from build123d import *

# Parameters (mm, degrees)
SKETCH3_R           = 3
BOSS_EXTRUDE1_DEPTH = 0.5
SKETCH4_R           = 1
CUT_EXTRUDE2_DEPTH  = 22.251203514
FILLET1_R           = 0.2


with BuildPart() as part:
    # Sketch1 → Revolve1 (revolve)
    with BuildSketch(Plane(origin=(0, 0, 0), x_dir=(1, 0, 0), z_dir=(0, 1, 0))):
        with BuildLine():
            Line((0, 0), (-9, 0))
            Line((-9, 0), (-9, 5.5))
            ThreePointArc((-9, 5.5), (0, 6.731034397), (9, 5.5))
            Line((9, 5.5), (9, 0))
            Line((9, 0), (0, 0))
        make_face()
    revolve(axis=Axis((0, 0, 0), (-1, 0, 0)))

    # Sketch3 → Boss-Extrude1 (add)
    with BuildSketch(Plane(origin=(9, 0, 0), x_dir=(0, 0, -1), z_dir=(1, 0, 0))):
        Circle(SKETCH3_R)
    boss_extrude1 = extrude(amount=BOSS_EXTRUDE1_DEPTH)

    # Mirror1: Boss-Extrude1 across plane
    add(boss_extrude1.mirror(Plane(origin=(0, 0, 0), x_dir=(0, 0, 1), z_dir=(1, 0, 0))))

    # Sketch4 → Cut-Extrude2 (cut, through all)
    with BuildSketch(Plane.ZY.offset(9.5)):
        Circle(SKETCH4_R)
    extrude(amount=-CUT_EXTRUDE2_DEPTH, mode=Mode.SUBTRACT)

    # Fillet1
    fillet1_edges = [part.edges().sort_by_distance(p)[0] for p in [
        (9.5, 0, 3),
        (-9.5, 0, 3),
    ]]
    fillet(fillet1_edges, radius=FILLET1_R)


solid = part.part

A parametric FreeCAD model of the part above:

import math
import FreeCAD as App
import Part
import Sketcher
Q = App.Units.Quantity


def edges_at(feature, points):
    """Names of the edges that pass closest to the given points."""
    edges = feature.Shape.Edges
    near = lambda p: min(range(len(edges)), key=lambda i: edges[i].distToShape(Part.Vertex(*p))[0])
    return sorted({f"Edge{near(p) + 1}" for p in points})

doc = App.newDocument("Part")
body = doc.addObject("PartDesign::Body", "Body")

sketch1 = body.newObject("Sketcher::SketchObject", "Sketch")
sketch1.AttachmentSupport = (doc.getObject("XZ_Plane"), [""])
sketch1.MapMode = "FlatFace"
sketch1.addGeometry([
    Part.LineSegment(App.Vector(-9, -6, 0), App.Vector(-9, 0, 0)),
    Part.LineSegment(App.Vector(-9, 0, 0), App.Vector(9, 0, 0)),
    Part.LineSegment(App.Vector(9, 0, 0), App.Vector(9, -6, 0)),
    Part.ArcOfCircle(Part.Circle(App.Vector(0, 27, 0), App.Vector(0, 0, 1), 34), math.radians(-106), math.radians(-74)),
], False)
sketch1.addConstraint([
    Sketcher.Constraint("Coincident", 0, 2, 1, 1),
    Sketcher.Constraint("Coincident", 1, 2, 2, 1),
    Sketcher.Constraint("Coincident", 2, 2, 3, 2),
    Sketcher.Constraint("Coincident", 3, 1, 0, 1),
    Sketcher.Constraint("Vertical", 0),
    Sketcher.Constraint("Horizontal", 1),
    Sketcher.Constraint("Vertical", 2),
    Sketcher.Constraint("Symmetric", 0, 2, 1, 2, -1, 1),
    Sketcher.Constraint("PointOnObject", 3, 3, -2),
    Sketcher.Constraint("DistanceX", 1, 1, 1, 2, Q("18 mm")),
    Sketcher.Constraint("DistanceY", 0, 1, 0, 2, Q("5.5 mm")),
    Sketcher.Constraint("Radius", 3, Q("33.514679 mm")),
])
revolution = body.newObject("PartDesign::Revolution", "Revolution")
revolution.Profile = sketch1
revolution.ReferenceAxis = (sketch1, ["H_Axis"])
revolution.Angle = 360

sketch2 = body.newObject("Sketcher::SketchObject", "Sketch001")
sketch2.AttachmentSupport = (doc.getObject("YZ_Plane"), [""])
sketch2.MapMode = "FlatFace"
sketch2.AttachmentOffset = App.Placement(App.Vector(0, 0, 9), App.Rotation())
sketch2.addGeometry(Part.Circle(App.Vector(0, 0, 0), App.Vector(0, 0, 1), 3), False)
sketch2.addConstraint([
    Sketcher.Constraint("Coincident", 0, 3, -1, 1),
    Sketcher.Constraint("Diameter", 0, Q("6 mm")),
])
pad1 = body.newObject("PartDesign::Pad", "Pad")
pad1.Profile = sketch2
pad1.Length = 0.5
doc.recompute()

mirrored = body.newObject("PartDesign::Mirrored", "Mirrored")
mirrored.Originals = [pad1]
mirrored.MirrorPlane = (doc.getObject("YZ_Plane"), [""])
body.Tip = mirrored

sketch3 = body.newObject("Sketcher::SketchObject", "Sketch002")
sketch3.AttachmentSupport = (doc.getObject("YZ_Plane"), [""])
sketch3.MapMode = "FlatFace"
sketch3.AttachmentOffset = App.Placement(App.Vector(0, 0, -9.5), App.Rotation())
sketch3.addGeometry(Part.Circle(App.Vector(0, 0, 0), App.Vector(0, 0, 1), 1), False)
sketch3.addConstraint([
    Sketcher.Constraint("Coincident", 0, 3, -1, 1),
    Sketcher.Constraint("Diameter", 0, Q("2 mm")),
])
pocket1 = body.newObject("PartDesign::Pocket", "Pocket")
pocket1.Profile = sketch3
pocket1.Type = "ThroughAll"
pocket1.Reversed = True
doc.recompute()

fillet = body.newObject("PartDesign::Fillet", "Fillet")
fillet.Base = (pocket1, edges_at(pocket1, [(9.5, 0, 3), (-9.5, 0, 3)]))
fillet.Radius = 0.2

doc.recompute()
